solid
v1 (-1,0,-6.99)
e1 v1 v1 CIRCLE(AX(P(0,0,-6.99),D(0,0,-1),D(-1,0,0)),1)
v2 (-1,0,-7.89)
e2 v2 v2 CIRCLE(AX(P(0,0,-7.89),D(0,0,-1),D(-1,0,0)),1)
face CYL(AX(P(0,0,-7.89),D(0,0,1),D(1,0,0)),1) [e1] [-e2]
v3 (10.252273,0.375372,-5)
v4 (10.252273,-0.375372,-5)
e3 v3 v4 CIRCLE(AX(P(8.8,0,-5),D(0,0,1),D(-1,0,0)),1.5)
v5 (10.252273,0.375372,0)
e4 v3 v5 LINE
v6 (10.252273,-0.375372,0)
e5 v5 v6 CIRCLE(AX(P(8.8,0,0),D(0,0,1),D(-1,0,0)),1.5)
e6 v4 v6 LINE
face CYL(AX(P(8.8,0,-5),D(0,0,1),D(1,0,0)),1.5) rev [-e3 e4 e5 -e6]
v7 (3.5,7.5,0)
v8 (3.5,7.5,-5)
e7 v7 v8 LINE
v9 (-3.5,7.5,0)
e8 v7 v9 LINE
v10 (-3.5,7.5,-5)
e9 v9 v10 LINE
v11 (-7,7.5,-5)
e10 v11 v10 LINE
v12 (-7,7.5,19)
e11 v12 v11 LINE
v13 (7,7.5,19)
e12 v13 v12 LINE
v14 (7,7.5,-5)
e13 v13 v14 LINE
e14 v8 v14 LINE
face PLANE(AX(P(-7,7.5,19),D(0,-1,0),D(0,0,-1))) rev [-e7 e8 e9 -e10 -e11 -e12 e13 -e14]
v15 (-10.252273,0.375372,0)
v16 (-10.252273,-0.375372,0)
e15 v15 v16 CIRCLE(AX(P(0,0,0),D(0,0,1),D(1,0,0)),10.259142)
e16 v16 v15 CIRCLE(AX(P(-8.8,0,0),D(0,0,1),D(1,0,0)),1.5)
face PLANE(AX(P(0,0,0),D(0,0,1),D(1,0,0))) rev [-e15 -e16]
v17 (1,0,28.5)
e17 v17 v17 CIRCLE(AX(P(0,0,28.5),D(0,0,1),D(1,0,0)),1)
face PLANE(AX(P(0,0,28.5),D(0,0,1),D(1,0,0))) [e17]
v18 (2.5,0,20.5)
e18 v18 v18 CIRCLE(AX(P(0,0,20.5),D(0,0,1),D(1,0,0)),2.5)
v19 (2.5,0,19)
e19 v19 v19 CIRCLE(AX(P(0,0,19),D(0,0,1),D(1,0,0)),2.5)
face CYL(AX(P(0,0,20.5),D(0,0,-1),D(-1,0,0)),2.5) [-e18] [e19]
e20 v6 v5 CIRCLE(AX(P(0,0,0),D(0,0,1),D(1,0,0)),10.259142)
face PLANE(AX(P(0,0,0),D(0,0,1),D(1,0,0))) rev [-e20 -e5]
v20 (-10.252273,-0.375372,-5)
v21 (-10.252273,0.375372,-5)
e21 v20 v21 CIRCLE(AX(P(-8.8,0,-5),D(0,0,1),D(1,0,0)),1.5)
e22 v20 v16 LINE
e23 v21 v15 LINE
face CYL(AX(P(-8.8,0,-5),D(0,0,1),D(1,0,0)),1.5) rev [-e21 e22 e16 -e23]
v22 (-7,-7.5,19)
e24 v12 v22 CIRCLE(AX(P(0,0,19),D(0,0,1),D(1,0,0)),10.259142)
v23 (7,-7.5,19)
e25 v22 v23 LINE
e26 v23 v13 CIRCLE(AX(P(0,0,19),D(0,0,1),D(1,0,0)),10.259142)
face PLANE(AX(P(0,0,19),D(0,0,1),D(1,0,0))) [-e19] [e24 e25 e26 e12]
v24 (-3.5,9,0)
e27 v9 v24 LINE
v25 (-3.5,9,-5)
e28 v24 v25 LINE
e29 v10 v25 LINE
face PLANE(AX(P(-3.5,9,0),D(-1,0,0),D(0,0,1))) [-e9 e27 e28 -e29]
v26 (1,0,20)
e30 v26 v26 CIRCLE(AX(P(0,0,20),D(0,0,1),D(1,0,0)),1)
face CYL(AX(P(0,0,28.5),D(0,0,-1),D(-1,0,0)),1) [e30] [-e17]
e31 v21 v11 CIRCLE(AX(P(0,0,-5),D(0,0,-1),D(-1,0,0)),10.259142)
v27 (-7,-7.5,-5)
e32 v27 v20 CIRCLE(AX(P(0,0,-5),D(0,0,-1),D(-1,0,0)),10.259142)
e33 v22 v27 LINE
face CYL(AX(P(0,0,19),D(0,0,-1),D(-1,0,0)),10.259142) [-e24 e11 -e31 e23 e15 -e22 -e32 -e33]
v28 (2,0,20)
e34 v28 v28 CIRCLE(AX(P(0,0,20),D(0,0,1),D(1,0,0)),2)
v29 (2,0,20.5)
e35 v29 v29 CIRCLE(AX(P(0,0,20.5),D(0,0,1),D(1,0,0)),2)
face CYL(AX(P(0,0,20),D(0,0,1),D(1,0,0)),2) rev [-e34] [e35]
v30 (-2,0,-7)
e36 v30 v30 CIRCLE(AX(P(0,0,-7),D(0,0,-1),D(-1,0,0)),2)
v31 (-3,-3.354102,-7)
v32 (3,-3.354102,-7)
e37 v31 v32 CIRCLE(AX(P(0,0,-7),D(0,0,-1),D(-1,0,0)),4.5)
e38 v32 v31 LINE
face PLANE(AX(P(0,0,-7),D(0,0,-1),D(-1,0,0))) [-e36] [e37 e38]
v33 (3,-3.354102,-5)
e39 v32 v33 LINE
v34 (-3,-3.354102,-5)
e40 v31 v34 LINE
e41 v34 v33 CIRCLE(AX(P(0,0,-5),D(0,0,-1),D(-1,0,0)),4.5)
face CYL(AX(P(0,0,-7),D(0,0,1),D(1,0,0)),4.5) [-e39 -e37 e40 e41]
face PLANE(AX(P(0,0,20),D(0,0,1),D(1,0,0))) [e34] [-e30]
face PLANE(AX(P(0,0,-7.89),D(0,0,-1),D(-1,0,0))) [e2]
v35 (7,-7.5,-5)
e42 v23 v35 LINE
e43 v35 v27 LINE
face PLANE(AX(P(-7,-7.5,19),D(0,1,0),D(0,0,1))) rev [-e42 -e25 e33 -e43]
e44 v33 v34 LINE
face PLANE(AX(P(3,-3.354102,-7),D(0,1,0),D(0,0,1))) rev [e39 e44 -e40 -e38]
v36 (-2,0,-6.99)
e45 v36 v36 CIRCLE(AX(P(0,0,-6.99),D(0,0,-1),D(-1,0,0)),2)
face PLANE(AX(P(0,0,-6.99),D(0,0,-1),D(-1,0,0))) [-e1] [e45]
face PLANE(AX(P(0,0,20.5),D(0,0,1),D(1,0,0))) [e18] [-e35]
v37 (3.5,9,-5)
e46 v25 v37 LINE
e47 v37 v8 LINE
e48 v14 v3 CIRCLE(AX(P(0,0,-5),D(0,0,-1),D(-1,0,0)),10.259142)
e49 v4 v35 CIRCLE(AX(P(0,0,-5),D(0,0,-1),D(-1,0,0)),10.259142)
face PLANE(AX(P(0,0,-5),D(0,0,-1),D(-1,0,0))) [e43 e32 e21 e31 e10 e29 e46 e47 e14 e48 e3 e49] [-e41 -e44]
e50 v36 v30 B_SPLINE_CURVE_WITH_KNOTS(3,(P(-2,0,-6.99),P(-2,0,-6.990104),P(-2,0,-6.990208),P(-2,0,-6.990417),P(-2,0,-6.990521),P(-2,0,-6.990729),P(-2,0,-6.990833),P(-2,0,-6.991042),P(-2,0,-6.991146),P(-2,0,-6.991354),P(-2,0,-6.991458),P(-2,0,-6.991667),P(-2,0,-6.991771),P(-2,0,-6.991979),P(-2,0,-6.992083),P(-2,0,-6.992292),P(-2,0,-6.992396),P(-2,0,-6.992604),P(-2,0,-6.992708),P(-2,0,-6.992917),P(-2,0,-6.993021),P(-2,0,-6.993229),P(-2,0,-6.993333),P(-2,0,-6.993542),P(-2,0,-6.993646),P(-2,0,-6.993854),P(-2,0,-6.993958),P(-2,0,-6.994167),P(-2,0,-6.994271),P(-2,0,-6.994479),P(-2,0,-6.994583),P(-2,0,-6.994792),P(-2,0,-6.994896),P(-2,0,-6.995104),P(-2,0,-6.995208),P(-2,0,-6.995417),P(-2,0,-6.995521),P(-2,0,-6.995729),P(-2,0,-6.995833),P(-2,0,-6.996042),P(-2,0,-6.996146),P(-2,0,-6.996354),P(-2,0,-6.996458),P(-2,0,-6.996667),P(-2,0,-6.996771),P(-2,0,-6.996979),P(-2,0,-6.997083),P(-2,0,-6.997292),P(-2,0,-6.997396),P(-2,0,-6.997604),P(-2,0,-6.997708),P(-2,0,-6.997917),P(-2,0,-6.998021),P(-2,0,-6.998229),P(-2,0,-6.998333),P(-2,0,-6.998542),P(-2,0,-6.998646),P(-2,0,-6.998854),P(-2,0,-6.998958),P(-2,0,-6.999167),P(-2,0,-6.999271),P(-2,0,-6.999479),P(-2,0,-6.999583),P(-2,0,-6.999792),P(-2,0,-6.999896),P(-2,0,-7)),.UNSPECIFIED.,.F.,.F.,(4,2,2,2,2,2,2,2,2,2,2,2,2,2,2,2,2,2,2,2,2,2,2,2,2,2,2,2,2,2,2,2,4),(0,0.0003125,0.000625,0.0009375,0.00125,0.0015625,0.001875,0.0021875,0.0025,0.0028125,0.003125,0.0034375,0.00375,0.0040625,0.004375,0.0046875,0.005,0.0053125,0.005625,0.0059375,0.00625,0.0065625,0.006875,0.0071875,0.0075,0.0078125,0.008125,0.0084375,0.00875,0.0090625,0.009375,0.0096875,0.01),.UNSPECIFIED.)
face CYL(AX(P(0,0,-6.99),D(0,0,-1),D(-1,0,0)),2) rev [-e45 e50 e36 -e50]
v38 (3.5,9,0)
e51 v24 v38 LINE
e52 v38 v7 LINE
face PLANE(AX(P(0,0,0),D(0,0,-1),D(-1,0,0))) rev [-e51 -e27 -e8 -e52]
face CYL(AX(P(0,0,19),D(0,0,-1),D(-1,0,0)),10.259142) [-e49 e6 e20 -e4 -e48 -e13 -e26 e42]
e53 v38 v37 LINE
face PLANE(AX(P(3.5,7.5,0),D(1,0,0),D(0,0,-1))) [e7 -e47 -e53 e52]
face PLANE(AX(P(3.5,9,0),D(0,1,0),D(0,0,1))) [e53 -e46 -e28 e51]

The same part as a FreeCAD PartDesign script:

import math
import FreeCAD as App
import Part
import Sketcher

V = App.Vector


def add_polygon(sketch, points):
    """Adds a closed chain of lines whose ends are joined by coincident constraints."""
    first, n = sketch.GeometryCount, len(points)
    for a, b in zip(points, points[1:] + points[:1]):
        sketch.addGeometry(Part.LineSegment(App.Vector(*a, 0), App.Vector(*b, 0)), False)
    for i in range(n):
        sketch.addConstraint(Sketcher.Constraint("Coincident", first + i, 2, first + (i + 1) % n, 1))

doc = App.newDocument("Part")
body = doc.addObject("PartDesign::Body", "Body")

# Sketch on XY plane
sketch1 = body.newObject("Sketcher::SketchObject", "Sketch")
sketch1.AttachmentSupport = (doc.getObject("XY_Plane"), [""])
sketch1.MapMode = "FlatFace"
sketch1.addGeometry(Part.LineSegment(V(7, 8, 0), V(-7, 8, 0)), False)
sketch1.addGeometry(Part.ArcOfCircle(Part.Circle(V(0, 0, 0), V(0, 0, 1), 10), math.radians(133), math.radians(227)), False)
sketch1.addGeometry(Part.LineSegment(V(-7, -8, 0), V(7, -8, 0)), False)
sketch1.addGeometry(Part.ArcOfCircle(Part.Circle(V(0, 0, 0), V(0, 0, 1), 10), math.radians(-47), math.radians(47)), False)
sketch1.addConstraint(Sketcher.Constraint("Coincident", 0, 2, 1, 1))
sketch1.addConstraint(Sketcher.Constraint("Coincident", 1, 2, 2, 1))
sketch1.addConstraint(Sketcher.Constraint("Coincident", 2, 2, 3, 1))
sketch1.addConstraint(Sketcher.Constraint("Coincident", 3, 2, 0, 1))
sketch1.addConstraint(Sketcher.Constraint("Horizontal", 0))
sketch1.addConstraint(Sketcher.Constraint("Horizontal", 2))
sketch1.addConstraint(Sketcher.Constraint("Coincident", 1, 3, -1, 1))
sketch1.addConstraint(Sketcher.Constraint("Coincident", 3, 3, -1, 1))
sketch1.addConstraint(Sketcher.Constraint("Equal", 1, 3))
sketch1.addConstraint(Sketcher.Constraint("Vertical", 0, 2, 1, 2))
sketch1.addConstraint(Sketcher.Constraint("DistanceX", 0, 2, 0, 1, 14.0))
sketch1.addConstraint(Sketcher.Constraint("DistanceY", 1, 2, 0, 2, 15.0))
pad1 = body.newObject("PartDesign::Pad", "Pad")
pad1.Profile = sketch1
pad1.Length = 19

# Sketch on XY plane
sketch2 = body.newObject("Sketcher::SketchObject", "Sketch001")
sketch2.AttachmentSupport = (doc.getObject("XY_Plane"), [""])
sketch2.MapMode = "FlatFace"
sketch2.AttachmentOffset = App.Placement(V(0, 0, 19), App.Rotation())
sketch2.addGeometry(Part.Circle(V(0, 0, 0), V(0, 0, 1), 2.5), False)
sketch2.addConstraint(Sketcher.Constraint("Coincident", 0, 3, -1, 1))
sketch2.addConstraint(Sketcher.Constraint("Diameter", 0, 5.0))
pad2 = body.newObject("PartDesign::Pad", "Pad001")
pad2.Profile = sketch2
pad2.Length = 1.5

# Sketch on XY plane
sketch3 = body.newObject("Sketcher::SketchObject", "Sketch002")
sketch3.AttachmentSupport = (doc.getObject("XY_Plane"), [""])
sketch3.MapMode = "FlatFace"
sketch3.AttachmentOffset = App.Placement(V(0, 0, 20.5), App.Rotation())
sketch3.addGeometry(Part.Circle(V(0, 0, 0), V(0, 0, 1), 2), False)
sketch3.addConstraint(Sketcher.Constraint("Coincident", 0, 3, -1, 1))
sketch3.addConstraint(Sketcher.Constraint("Diameter", 0, 4.0))
pocket1 = body.newObject("PartDesign::Pocket", "Pocket")
pocket1.Profile = sketch3
pocket1.Length = 0.5

# Sketch on XY plane
sketch4 = body.newObject("Sketcher::SketchObject", "Sketch003")
sketch4.AttachmentSupport = (doc.getObject("XY_Plane"), [""])
sketch4.MapMode = "FlatFace"
sketch4.AttachmentOffset = App.Placement(V(0, 0, 20), App.Rotation())
sketch4.addGeometry(Part.Circle(V(0, 0, 0), V(0, 0, 1), 1), False)
sketch4.addConstraint(Sketcher.Constraint("Coincident", 0, 3, -1, 1))
sketch4.addConstraint(Sketcher.Constraint("Diameter", 0, 2.0))
pad3 = body.newObject("PartDesign::Pad", "Pad002")
pad3.Profile = sketch4
pad3.Length = 8.5

# Sketch on XY plane
sketch5 = body.newObject("Sketcher::SketchObject", "Sketch004")
sketch5.AttachmentSupport = (doc.getObject("XY_Plane"), [""])
sketch5.MapMode = "FlatFace"
sketch5.AttachmentOffset = App.Placement(V(0, 0, -5), App.Rotation())
sketch5.addGeometry(Part.LineSegment(V(-7, 7.5, 0), V(7, 7.5, 0)), False)
sketch5.addGeometry(Part.ArcOfCircle(Part.Circle(V(0, 0, 0), V(0, 0, 1), 10.3), math.radians(2), math.radians(47)), False)
sketch5.addGeometry(Part.ArcOfCircle(Part.Circle(V(8.8, 0, 0), V(0, 0, 1), 1.5), math.radians(14), math.radians(346)), False)
sketch5.addGeometry(Part.ArcOfCircle(Part.Circle(V(0, 0, 0), V(0, 0, 1), 10.3), math.radians(-47), math.radians(-2)), False)
sketch5.addGeometry(Part.LineSegment(V(7, -7.5, 0), V(-7, -7.5, 0)), False)
sketch5.addGeometry(Part.ArcOfCircle(Part.Circle(V(0, 0, 0), V(0, 0, 1), 10.3), math.radians(-178), math.radians(-133)), False)
sketch5.addGeometry(Part.ArcOfCircle(Part.Circle(V(-8.8, 0, 0), V(0, 0, 1), 1.5), math.radians(-166), math.radians(166)), False)
sketch5.addGeometry(Part.ArcOfCircle(Part.Circle(V(0, 0, 0), V(0, 0, 1), 10.3), math.radians(133), math.radians(178)), False)
sketch5.addConstraint(Sketcher.Constraint("Coincident", 0, 2, 1, 2))
sketch5.addConstraint(Sketcher.Constraint("Coincident", 1, 1, 2, 1))
sketch5.addConstraint(Sketcher.Constraint("Coincident", 2, 2, 3, 2))
sketch5.addConstraint(Sketcher.Constraint("Coincident", 3, 1, 4, 1))
sketch5.addConstraint(Sketcher.Constraint("Coincident", 4, 2, 5, 2))
sketch5.addConstraint(Sketcher.Constraint("Coincident", 5, 1, 6, 1))
sketch5.addConstraint(Sketcher.Constraint("Coincident", 6, 2, 7, 2))
sketch5.addConstraint(Sketcher.Constraint("Coincident", 7, 1, 0, 1))
sketch5.addConstraint(Sketcher.Constraint("Horizontal", 0))
sketch5.addConstraint(Sketcher.Constraint("Horizontal", 4))
sketch5.addConstraint(Sketcher.Constraint("Coincident", 1, 3, -1, 1))
sketch5.addConstraint(Sketcher.Constraint("Coincident", 3, 3, -1, 1))
sketch5.addConstraint(Sketcher.Constraint("Coincident", 5, 3, -1, 1))
sketch5.addConstraint(Sketcher.Constraint("Coincident", 7, 3, -1, 1))
sketch5.addConstraint(Sketcher.Constraint("Equal", 1, 3))
sketch5.addConstraint(Sketcher.Constraint("Equal", 3, 5))
sketch5.addConstraint(Sketcher.Constraint("Equal", 2, 6))
sketch5.addConstraint(Sketcher.Constraint("Equal", 5, 7))
sketch5.addConstraint(Sketcher.Constraint("Symmetric", 2, 3, 6, 3, -1, 1))
sketch5.addConstraint(Sketcher.Constraint("PointOnObject", 2, 3, -1))
sketch5.addConstraint(Sketcher.Constraint("Vertical", 0, 2, 3, 1))
sketch5.addConstraint(Sketcher.Constraint("Radius", 2, 1.5))
sketch5.addConstraint(Sketcher.Constraint("DistanceX", 0, 1, 0, 2, 14.0))
sketch5.addConstraint(Sketcher.Constraint("DistanceX", -1, 1, 2, 3, 8.8))
sketch5.addConstraint(Sketcher.Constraint("DistanceY", -1, 1, 0, 2, 7.5))
pad4 = body.newObject("PartDesign::Pad", "Pad003")
pad4.Profile = sketch5
pad4.Length = 5

# Sketch on XY plane
sketch6 = body.newObject("Sketcher::SketchObject", "Sketch005")
sketch6.AttachmentSupport = (doc.getObject("XY_Plane"), [""])
sketch6.MapMode = "FlatFace"
sketch6.AttachmentOffset = App.Placement(V(0, 0, -5), App.Rotation())
sketch6.addGeometry(Part.LineSegment(V(3, -3.4, 0), V(-3, -3.4, 0)), False)
sketch6.addGeometry(Part.ArcOfCircle(Part.Circle(V(0, 0, 0), V(0, 0, 1), 4.5), math.radians(-48), math.radians(228)), False)
sketch6.addConstraint(Sketcher.Constraint("Coincident", 0, 1, 1, 1))
sketch6.addConstraint(Sketcher.Constraint("Coincident", 1, 2, 0, 2))
sketch6.addConstraint(Sketcher.Constraint("Horizontal", 0))
sketch6.addConstraint(Sketcher.Constraint("Coincident", 1, 3, -1, 1))
sketch6.addConstraint(Sketcher.Constraint("Radius", 1, 4.5))
sketch6.addConstraint(Sketcher.Constraint("DistanceX", 0, 2, 0, 1, 6.0))
pad5 = body.newObject("PartDesign::Pad", "Pad004")
pad5.Profile = sketch6
pad5.Length = 2
pad5.Reversed = True

# Sketch on XY plane
sketch7 = body.newObject("Sketcher::SketchObject", "Sketch006")
sketch7.AttachmentSupport = (doc.getObject("XY_Plane"), [""])
sketch7.MapMode = "FlatFace"
sketch7.AttachmentOffset = App.Placement(V(0, 0, -6.99), App.Rotation())
sketch7.addGeometry(Part.Circle(V(0, 0, 0), V(0, 0, 1), 2), False)
sketch7.addConstraint(Sketcher.Constraint("Coincident", 0, 3, -1, 1))
sketch7.addConstraint(Sketcher.Constraint("Diameter", 0, 4.0))
pocket2 = body.newObject("PartDesign::Pocket", "Pocket001")
pocket2.Profile = sketch7
pocket2.Length = 0.01

# Sketch on XY plane
sketch8 = body.newObject("Sketcher::SketchObject", "Sketch007")
sketch8.AttachmentSupport = (doc.getObject("XY_Plane"), [""])
sketch8.MapMode = "FlatFace"
sketch8.AttachmentOffset = App.Placement(V(0, 0, -7.89), App.Rotation())
sketch8.addGeometry(Part.Circle(V(0, 0, 0), V(0, 0, 1), 1), False)
sketch8.addConstraint(Sketcher.Constraint("Coincident", 0, 3, -1, 1))
sketch8.addConstraint(Sketcher.Constraint("Diameter", 0, 2.0))
pad6 = body.newObject("PartDesign::Pad", "Pad005")
pad6.Profile = sketch8
pad6.Length = 0.9

# Sketch on XY plane
sketch9 = body.newObject("Sketcher::SketchObject", "Sketch008")
sketch9.AttachmentSupport = (doc.getObject("XY_Plane"), [""])
sketch9.MapMode = "FlatFace"
sketch9.AttachmentOffset = App.Placement(V(0, 0, -5), App.Rotation())
add_polygon(sketch9, [(3.5, 9), (3.5, 7.5), (-3.5, 7.5), (-3.5, 9)])  # lines 0-3
sketch9.addConstraint(Sketcher.Constraint("Vertical", 0))
sketch9.addConstraint(Sketcher.Constraint("Horizontal", 1))
sketch9.addConstraint(Sketcher.Constraint("Vertical", 2))
sketch9.addConstraint(Sketcher.Constraint("Horizontal", 3))
sketch9.addConstraint(Sketcher.Constraint("DistanceX", 1, 2, 1, 1, 7.0))
sketch9.addConstraint(Sketcher.Constraint("DistanceY", 0, 2, 0, 1, 1.5))
sketch9.addConstraint(Sketcher.Constraint("DistanceY", -1, 1, 2, 2, 9.0))
sketch9.addConstraint(Sketcher.Constraint("DistanceX", -1, 1, 0, 2, 3.5))
pad7 = body.newObject("PartDesign::Pad", "Pad006")
pad7.Profile = sketch9
pad7.Length = 5

doc.recompute()
